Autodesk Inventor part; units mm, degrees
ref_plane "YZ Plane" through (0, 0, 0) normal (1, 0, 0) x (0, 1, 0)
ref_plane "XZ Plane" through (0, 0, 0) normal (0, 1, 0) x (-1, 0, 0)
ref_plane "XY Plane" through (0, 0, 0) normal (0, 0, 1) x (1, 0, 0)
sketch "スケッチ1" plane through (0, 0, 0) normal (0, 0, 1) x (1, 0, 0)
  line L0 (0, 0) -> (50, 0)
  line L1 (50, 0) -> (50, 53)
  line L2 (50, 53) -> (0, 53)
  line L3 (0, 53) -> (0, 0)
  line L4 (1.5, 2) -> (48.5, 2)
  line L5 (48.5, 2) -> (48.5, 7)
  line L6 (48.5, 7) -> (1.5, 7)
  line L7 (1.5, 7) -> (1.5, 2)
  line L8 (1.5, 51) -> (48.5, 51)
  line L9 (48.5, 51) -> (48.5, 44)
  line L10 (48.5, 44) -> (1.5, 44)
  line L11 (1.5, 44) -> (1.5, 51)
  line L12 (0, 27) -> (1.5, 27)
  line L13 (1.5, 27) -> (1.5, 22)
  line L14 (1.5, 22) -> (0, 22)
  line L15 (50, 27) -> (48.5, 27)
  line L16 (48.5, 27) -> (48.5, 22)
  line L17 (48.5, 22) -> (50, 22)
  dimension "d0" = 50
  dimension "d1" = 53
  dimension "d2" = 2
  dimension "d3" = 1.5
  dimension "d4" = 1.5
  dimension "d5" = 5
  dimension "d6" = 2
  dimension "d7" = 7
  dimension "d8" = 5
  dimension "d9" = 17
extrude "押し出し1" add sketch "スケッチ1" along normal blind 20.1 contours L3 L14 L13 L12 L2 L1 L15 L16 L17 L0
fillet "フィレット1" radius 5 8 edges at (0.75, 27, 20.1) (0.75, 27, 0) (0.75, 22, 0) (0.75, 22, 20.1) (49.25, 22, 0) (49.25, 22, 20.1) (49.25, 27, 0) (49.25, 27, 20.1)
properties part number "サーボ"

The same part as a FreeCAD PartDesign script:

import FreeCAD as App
import Part
import Sketcher

V = App.Vector
Q = App.Units.Quantity


def edges_at(feature, points):
    """Names of the edges that pass closest to the given points."""
    edges = feature.Shape.Edges
    near = lambda p: min(range(len(edges)), key=lambda i: edges[i].distToShape(Part.Vertex(*p))[0])
    return sorted({f"Edge{near(p) + 1}" for p in points})

doc = App.newDocument("Part")
body = doc.addObject("PartDesign::Body", "Body")

sketch1 = body.newObject("Sketcher::SketchObject", "Sketch")
sketch1.AttachmentSupport = (doc.getObject("XY_Plane"), [""])
sketch1.MapMode = "FlatFace"
sketch1.addGeometry(Part.LineSegment(V(0, 22, 0), V(0, 0, 0)), False)
sketch1.addGeometry(Part.LineSegment(V(0, 0, 0), V(50, 0, 0)), False)
sketch1.addGeometry(Part.LineSegment(V(50, 0, 0), V(50, 22, 0)), False)
sketch1.addGeometry(Part.LineSegment(V(50, 22, 0), V(48.5, 22, 0)), False)
sketch1.addGeometry(Part.LineSegment(V(48.5, 22, 0), V(48.5, 27, 0)), False)
sketch1.addGeometry(Part.LineSegment(V(48.5, 27, 0), V(50, 27, 0)), False)
sketch1.addGeometry(Part.LineSegment(V(50, 27, 0), V(50, 53, 0)), False)
sketch1.addGeometry(Part.LineSegment(V(50, 53, 0), V(0, 53, 0)), False)
sketch1.addGeometry(Part.LineSegment(V(0, 53, 0), V(0, 27, 0)), False)
sketch1.addGeometry(Part.LineSegment(V(0, 27, 0), V(1.5, 27, 0)), False)
sketch1.addGeometry(Part.LineSegment(V(1.5, 27, 0), V(1.5, 22, 0)), False)
sketch1.addGeometry(Part.LineSegment(V(1.5, 22, 0), V(0, 22, 0)), False)
sketch1.addGeometry(Part.LineSegment(V(48.5, 2, 0), V(1.5, 2, 0)), False)
sketch1.addGeometry(Part.LineSegment(V(1.5, 2, 0), V(1.5, 7, 0)), False)
sketch1.addGeometry(Part.LineSegment(V(1.5, 7, 0), V(48.5, 7, 0)), False)
sketch1.addGeometry(Part.LineSegment(V(48.5, 7, 0), V(48.5, 2, 0)), False)
sketch1.addGeometry(Part.LineSegment(V(1.5, 44, 0), V(1.5, 51, 0)), False)
sketch1.addGeometry(Part.LineSegment(V(1.5, 51, 0), V(48.5, 51, 0)), False)
sketch1.addGeometry(Part.LineSegment(V(48.5, 51, 0), V(48.5, 44, 0)), False)
sketch1.addGeometry(Part.LineSegment(V(48.5, 44, 0), V(1.5, 44, 0)), False)
sketch1.addConstraint(Sketcher.Constraint("Coincident", 0, 2, 1, 1))
sketch1.addConstraint(Sketcher.Constraint("Coincident", 1, 2, 2, 1))
sketch1.addConstraint(Sketcher.Constraint("Coincident", 2, 2, 3, 1))
sketch1.addConstraint(Sketcher.Constraint("Coincident", 3, 2, 4, 1))
sketch1.addConstraint(Sketcher.Constraint("Coincident", 4, 2, 5, 1))
sketch1.addConstraint(Sketcher.Constraint("Coincident", 5, 2, 6, 1))
sketch1.addConstraint(Sketcher.Constraint("Coincident", 6, 2, 7, 1))
sketch1.addConstraint(Sketcher.Constraint("Coincident", 7, 2, 8, 1))
sketch1.addConstraint(Sketcher.Constraint("Coincident", 8, 2, 9, 1))
sketch1.addConstraint(Sketcher.Constraint("Coincident", 9, 2, 10, 1))
sketch1.addConstraint(Sketcher.Constraint("Coincident", 10, 2, 11, 1))
sketch1.addConstraint(Sketcher.Constraint("Coincident", 11, 2, 0, 1))
sketch1.addConstraint(Sketcher.Constraint("Coincident", 12, 2, 13, 1))
sketch1.addConstraint(Sketcher.Constraint("Coincident", 13, 2, 14, 1))
sketch1.addConstraint(Sketcher.Constraint("Coincident", 14, 2, 15, 1))
sketch1.addConstraint(Sketcher.Constraint("Coincident", 15, 2, 12, 1))
sketch1.addConstraint(Sketcher.Constraint("Coincident", 16, 2, 17, 1))
sketch1.addConstraint(Sketcher.Constraint("Coincident", 17, 2, 18, 1))
sketch1.addConstraint(Sketcher.Constraint("Coincident", 18, 2, 19, 1))
sketch1.addConstraint(Sketcher.Constraint("Coincident", 19, 2, 16, 1))
sketch1.addConstraint(Sketcher.Constraint("Vertical", 0))
sketch1.addConstraint(Sketcher.Constraint("Horizontal", 1))
sketch1.addConstraint(Sketcher.Constraint("Vertical", 2))
sketch1.addConstraint(Sketcher.Constraint("Horizontal", 3))
sketch1.addConstraint(Sketcher.Constraint("Vertical", 4))
sketch1.addConstraint(Sketcher.Constraint("Horizontal", 5))
sketch1.addConstraint(Sketcher.Constraint("Vertical", 6))
sketch1.addConstraint(Sketcher.Constraint("Horizontal", 7))
sketch1.addConstraint(Sketcher.Constraint("Vertical", 8))
sketch1.addConstraint(Sketcher.Constraint("Horizontal", 9))
sketch1.addConstraint(Sketcher.Constraint("Vertical", 10))
sketch1.addConstraint(Sketcher.Constraint("Horizontal", 11))
sketch1.addConstraint(Sketcher.Constraint("Horizontal", 12))
sketch1.addConstraint(Sketcher.Constraint("Vertical", 13))
sketch1.addConstraint(Sketcher.Constraint("Horizontal", 14))
sketch1.addConstraint(Sketcher.Constraint("Vertical", 15))
sketch1.addConstraint(Sketcher.Constraint("Vertical", 16))
sketch1.addConstraint(Sketcher.Constraint("Horizontal", 17))
sketch1.addConstraint(Sketcher.Constraint("Vertical", 18))
sketch1.addConstraint(Sketcher.Constraint("Horizontal", 19))
sketch1.addConstraint(Sketcher.Constraint("Coincident", 0, 2, -1, 1))
sketch1.addConstraint(Sketcher.Constraint("PointOnObject", 7, 2, -2))
sketch1.addConstraint(Sketcher.Constraint("Horizontal", 5, 2, 8, 2))
sketch1.addConstraint(Sketcher.Constraint("Horizontal", 3, 2, 10, 2))
sketch1.addConstraint(Sketcher.Constraint("Vertical", 2, 2, 5, 2))
sketch1.addConstraint(Sketcher.Constraint("Vertical", 10, 2, 12, 2))
sketch1.addConstraint(Sketcher.Constraint("Vertical", 4, 2, 14, 2))
sketch1.addConstraint(Sketcher.Constraint("Vertical", 13, 2, 16, 2))
sketch1.addConstraint(Sketcher.Constraint("Vertical", 15, 2, 17, 2))
sketch1.addConstraint(Sketcher.Constraint("Equal", 5, 9))
sketch1.addConstraint(Sketcher.Constraint("Equal", 10, 13))
sketch1.addConstraint(Sketcher.Constraint("DistanceX", 1, 1, 1, 2, Q("50 mm")))
sketch1.addConstraint(Sketcher.Constraint("DistanceY", 4, 1, 4, 2, Q("5 mm")))
sketch1.addConstraint(Sketcher.Constraint("DistanceY", 16, 1, 16, 2, Q("7 mm")))
sketch1.addConstraint(Sketcher.Constraint("DistanceX", 3, 2, 3, 1, Q("1.5 mm")))
sketch1.addConstraint(Sketcher.Constraint("DistanceY", -1, 1, 6, 2, Q("53 mm")))
sketch1.addConstraint(Sketcher.Constraint("DistanceY", -1, 1, 12, 2, Q("2 mm")))
sketch1.addConstraint(Sketcher.Constraint("DistanceY", 16, 2, 7, 2, Q("2 mm")))
sketch1.addConstraint(Sketcher.Constraint("DistanceY", 4, 2, 18, 2, Q("17 mm")))
pad1 = body.newObject("PartDesign::Pad", "Pad")
pad1.Profile = sketch1
pad1.Length = 20.1
doc.recompute()

fillet = body.newObject("PartDesign::Fillet", "Fillet")
fillet.Base = (pad1, edges_at(pad1, [
    (0.75, 27, 20.1),
    (0.75, 27, 0),
    (0.75, 22, 0),
    (0.75, 22, 20.1),
    (49.25, 22, 0),
    (49.25, 22, 20.1),
    (49.25, 27, 0),
    (49.25, 27, 20.1),
]))
fillet.Radius = 5

doc.recompute()
